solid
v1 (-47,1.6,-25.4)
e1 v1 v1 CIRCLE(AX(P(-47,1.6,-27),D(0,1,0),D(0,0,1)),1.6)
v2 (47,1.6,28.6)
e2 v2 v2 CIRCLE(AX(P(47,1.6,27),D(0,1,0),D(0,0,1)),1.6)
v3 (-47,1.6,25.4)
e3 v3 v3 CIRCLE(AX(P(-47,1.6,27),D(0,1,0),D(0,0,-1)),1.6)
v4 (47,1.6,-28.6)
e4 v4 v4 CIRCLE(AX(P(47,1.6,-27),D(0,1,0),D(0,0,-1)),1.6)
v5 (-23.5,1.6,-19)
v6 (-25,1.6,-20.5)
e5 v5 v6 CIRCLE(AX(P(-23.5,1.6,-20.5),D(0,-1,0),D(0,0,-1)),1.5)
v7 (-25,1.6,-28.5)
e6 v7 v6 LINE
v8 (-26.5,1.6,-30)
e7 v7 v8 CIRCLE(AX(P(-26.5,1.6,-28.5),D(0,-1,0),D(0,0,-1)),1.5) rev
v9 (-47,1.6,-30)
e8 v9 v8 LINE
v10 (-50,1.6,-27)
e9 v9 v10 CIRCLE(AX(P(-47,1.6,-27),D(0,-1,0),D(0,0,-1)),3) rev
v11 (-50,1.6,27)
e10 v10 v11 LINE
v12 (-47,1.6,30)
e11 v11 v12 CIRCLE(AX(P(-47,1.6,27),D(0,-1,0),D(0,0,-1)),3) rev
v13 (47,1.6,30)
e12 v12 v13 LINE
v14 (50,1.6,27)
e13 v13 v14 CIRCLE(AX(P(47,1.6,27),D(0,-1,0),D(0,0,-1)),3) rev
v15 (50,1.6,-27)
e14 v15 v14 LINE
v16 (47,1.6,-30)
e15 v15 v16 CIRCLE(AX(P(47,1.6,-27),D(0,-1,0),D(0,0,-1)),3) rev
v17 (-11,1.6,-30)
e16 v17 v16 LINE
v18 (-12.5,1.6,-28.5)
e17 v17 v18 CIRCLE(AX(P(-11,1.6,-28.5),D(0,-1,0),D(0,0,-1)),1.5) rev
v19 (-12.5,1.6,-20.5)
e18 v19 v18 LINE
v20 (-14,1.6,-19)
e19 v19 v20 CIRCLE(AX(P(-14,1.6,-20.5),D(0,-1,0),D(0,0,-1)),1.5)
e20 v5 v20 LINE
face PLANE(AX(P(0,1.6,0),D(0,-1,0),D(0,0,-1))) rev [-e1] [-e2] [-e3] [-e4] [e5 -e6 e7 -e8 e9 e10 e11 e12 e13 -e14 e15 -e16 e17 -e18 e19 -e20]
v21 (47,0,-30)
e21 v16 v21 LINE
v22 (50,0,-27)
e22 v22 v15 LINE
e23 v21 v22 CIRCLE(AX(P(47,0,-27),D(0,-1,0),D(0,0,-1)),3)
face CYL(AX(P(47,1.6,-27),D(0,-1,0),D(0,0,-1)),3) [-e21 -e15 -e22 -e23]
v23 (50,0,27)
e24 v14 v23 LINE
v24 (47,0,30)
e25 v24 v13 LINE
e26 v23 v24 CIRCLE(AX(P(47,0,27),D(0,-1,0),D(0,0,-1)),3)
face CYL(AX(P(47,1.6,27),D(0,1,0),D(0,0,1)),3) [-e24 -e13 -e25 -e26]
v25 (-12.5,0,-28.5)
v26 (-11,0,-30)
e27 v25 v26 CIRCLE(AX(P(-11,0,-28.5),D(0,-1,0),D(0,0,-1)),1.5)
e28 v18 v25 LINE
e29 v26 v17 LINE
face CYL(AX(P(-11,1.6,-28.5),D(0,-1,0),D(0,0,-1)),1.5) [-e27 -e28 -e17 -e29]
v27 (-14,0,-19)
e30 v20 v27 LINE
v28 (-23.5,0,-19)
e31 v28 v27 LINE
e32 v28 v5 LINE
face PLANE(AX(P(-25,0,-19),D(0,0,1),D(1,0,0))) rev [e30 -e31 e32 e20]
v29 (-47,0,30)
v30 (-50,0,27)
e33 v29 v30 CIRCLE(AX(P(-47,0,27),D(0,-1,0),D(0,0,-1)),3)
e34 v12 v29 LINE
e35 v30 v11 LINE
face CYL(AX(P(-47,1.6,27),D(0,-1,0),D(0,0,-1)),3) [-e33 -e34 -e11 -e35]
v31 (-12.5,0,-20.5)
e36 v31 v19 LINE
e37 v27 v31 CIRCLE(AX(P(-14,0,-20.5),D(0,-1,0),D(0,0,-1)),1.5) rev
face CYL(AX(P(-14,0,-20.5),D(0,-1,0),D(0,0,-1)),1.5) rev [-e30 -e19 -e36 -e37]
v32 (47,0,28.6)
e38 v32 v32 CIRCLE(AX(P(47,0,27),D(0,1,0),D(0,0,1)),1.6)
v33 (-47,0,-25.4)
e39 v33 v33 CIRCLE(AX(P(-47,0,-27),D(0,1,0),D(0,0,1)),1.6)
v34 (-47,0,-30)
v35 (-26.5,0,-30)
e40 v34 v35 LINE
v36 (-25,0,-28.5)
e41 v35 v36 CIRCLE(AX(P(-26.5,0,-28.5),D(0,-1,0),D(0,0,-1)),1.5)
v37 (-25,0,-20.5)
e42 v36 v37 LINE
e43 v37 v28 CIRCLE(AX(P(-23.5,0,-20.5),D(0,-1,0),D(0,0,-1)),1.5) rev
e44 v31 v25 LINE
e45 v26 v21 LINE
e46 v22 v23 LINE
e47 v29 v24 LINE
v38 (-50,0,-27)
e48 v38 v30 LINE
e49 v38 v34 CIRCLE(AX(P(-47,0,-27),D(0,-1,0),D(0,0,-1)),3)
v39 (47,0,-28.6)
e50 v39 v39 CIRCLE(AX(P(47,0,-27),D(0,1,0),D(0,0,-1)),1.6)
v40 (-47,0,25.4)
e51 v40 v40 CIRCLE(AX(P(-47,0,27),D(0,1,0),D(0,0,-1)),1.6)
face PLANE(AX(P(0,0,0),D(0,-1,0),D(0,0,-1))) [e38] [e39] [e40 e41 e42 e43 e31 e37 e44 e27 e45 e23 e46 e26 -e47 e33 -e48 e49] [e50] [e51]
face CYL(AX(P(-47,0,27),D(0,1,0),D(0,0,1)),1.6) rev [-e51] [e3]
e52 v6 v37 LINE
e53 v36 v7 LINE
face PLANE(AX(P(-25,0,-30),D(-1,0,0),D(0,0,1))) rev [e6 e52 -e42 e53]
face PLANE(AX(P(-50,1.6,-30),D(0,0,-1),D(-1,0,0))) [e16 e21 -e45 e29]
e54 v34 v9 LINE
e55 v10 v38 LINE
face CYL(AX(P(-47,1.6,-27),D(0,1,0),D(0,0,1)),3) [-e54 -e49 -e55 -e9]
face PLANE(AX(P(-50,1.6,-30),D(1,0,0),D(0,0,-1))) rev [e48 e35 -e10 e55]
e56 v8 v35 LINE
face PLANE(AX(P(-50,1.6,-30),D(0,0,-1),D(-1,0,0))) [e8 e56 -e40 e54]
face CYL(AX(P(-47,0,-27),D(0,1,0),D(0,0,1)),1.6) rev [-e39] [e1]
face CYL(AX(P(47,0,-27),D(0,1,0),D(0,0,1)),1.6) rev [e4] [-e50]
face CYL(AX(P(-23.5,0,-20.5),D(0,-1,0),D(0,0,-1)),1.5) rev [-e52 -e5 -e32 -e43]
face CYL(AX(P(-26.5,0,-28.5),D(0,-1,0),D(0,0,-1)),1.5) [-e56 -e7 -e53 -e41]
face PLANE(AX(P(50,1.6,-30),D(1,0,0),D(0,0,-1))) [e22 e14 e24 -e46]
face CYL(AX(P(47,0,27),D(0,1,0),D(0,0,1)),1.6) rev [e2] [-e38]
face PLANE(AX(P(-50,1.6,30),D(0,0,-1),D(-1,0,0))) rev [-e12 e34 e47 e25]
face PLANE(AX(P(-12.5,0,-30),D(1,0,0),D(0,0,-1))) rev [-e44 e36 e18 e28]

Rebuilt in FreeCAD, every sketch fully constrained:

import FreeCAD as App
import Part
import Sketcher
from FreeCAD import Vector
Q = App.Units.Quantity


def edges_at(feature, points):
    """Names of the edges that pass closest to the given points."""
    edges = feature.Shape.Edges
    near = lambda p: min(range(len(edges)), key=lambda i: edges[i].distToShape(Part.Vertex(*p))[0])
    return sorted({f"Edge{near(p) + 1}" for p in points})

doc = App.newDocument("Part")
body = doc.addObject("PartDesign::Body", "Body")

# Sketch on XZ plane
sketch1 = body.newObject("Sketcher::SketchObject", "Sketch")
sketch1.AttachmentSupport = (doc.getObject("XZ_Plane"), [""])
sketch1.MapMode = "FlatFace"
sketch1.addGeometry(Part.LineSegment(Vector(-50, -30, 0), Vector(-50, 30, 0)), False)
sketch1.addGeometry(Part.LineSegment(Vector(-50, 30, 0), Vector(50, 30, 0)), False)
sketch1.addGeometry(Part.LineSegment(Vector(50, 30, 0), Vector(50, -30, 0)), False)
sketch1.addGeometry(Part.LineSegment(Vector(50, -30, 0), Vector(-50, -30, 0)), False)
sketch1.addConstraint(Sketcher.Constraint("Coincident", 0, 2, 1, 1))
sketch1.addConstraint(Sketcher.Constraint("Coincident", 1, 2, 2, 1))
sketch1.addConstraint(Sketcher.Constraint("Coincident", 2, 2, 3, 1))
sketch1.addConstraint(Sketcher.Constraint("Coincident", 3, 2, 0, 1))
sketch1.addConstraint(Sketcher.Constraint("Vertical", 0))
sketch1.addConstraint(Sketcher.Constraint("Horizontal", 1))
sketch1.addConstraint(Sketcher.Constraint("Vertical", 2))
sketch1.addConstraint(Sketcher.Constraint("Horizontal", 3))
sketch1.addConstraint(Sketcher.Constraint("Symmetric", 0, 2, 2, 2, -1, 1))
sketch1.addConstraint(Sketcher.Constraint("DistanceX", 1, 1, 1, 2, Q("100 mm")))
sketch1.addConstraint(Sketcher.Constraint("DistanceY", 0, 1, 0, 2, Q("60 mm")))
pad1 = body.newObject("PartDesign::Pad", "Pad")
pad1.Profile = sketch1
pad1.Length = 1.6
pad1.Reversed = True

# Sketch on XZ plane
sketch2 = body.newObject("Sketcher::SketchObject", "Sketch001")
sketch2.AttachmentSupport = (doc.getObject("XZ_Plane"), [""])
sketch2.MapMode = "FlatFace"
sketch2.AttachmentOffset = App.Placement(Vector(0, 0, -1.6), App.Rotation())
sketch2.addGeometry(Part.Circle(Vector(-47, -27, 0), Vector(0, 0, 1), 1.6), False)
sketch2.addGeometry(Part.Circle(Vector(47, -27, 0), Vector(0, 0, 1), 1.6), False)
sketch2.addGeometry(Part.Circle(Vector(47, 27, 0), Vector(0, 0, 1), 1.6), False)
sketch2.addGeometry(Part.Circle(Vector(-47, 27, 0), Vector(0, 0, 1), 1.6), False)
sketch2.addConstraint(Sketcher.Constraint("Equal", 0, 1))
sketch2.addConstraint(Sketcher.Constraint("Equal", 1, 2))
sketch2.addConstraint(Sketcher.Constraint("Equal", 2, 3))
sketch2.addConstraint(Sketcher.Constraint("Symmetric", 0, 3, 2, 3, -1, 1))
sketch2.addConstraint(Sketcher.Constraint("Symmetric", 1, 3, 3, 3, -1, 1))
sketch2.addConstraint(Sketcher.Constraint("Symmetric", 0, 3, 1, 3, -2))
sketch2.addConstraint(Sketcher.Constraint("Diameter", 0, Q("3.2 mm")))
sketch2.addConstraint(Sketcher.Constraint("DistanceX", 0, 3, -1, 1, Q("47 mm")))
sketch2.addConstraint(Sketcher.Constraint("DistanceY", 0, 3, -1, 1, Q("27 mm")))
pocket1 = body.newObject("PartDesign::Pocket", "Pocket")
pocket1.Profile = sketch2
pocket1.Type = "ThroughAll"
pocket1.Reversed = True

# Sketch on XZ plane
sketch3 = body.newObject("Sketcher::SketchObject", "Sketch002")
sketch3.AttachmentSupport = (doc.getObject("XZ_Plane"), [""])
sketch3.MapMode = "FlatFace"
sketch3.AttachmentOffset = App.Placement(Vector(0, 0, -1.6), App.Rotation())
sketch3.addGeometry(Part.LineSegment(Vector(-25, -30, 0), Vector(-25, -19, 0)), False)
sketch3.addGeometry(Part.LineSegment(Vector(-25, -19, 0), Vector(-12, -19, 0)), False)
sketch3.addGeometry(Part.LineSegment(Vector(-12, -19, 0), Vector(-12, -30, 0)), False)
sketch3.addGeometry(Part.LineSegment(Vector(-12, -30, 0), Vector(-25, -30, 0)), False)
sketch3.addConstraint(Sketcher.Constraint("Coincident", 0, 2, 1, 1))
sketch3.addConstraint(Sketcher.Constraint("Coincident", 1, 2, 2, 1))
sketch3.addConstraint(Sketcher.Constraint("Coincident", 2, 2, 3, 1))
sketch3.addConstraint(Sketcher.Constraint("Coincident", 3, 2, 0, 1))
sketch3.addConstraint(Sketcher.Constraint("Vertical", 0))
sketch3.addConstraint(Sketcher.Constraint("Horizontal", 1))
sketch3.addConstraint(Sketcher.Constraint("Vertical", 2))
sketch3.addConstraint(Sketcher.Constraint("Horizontal", 3))
sketch3.addConstraint(Sketcher.Constraint("DistanceY", 0, 1, 0, 2, Q("11 mm")))
sketch3.addConstraint(Sketcher.Constraint("DistanceX", 1, 1, 1, 2, Q("12.5 mm")))
sketch3.addConstraint(Sketcher.Constraint("DistanceX", 0, 2, -1, 1, Q("25 mm")))
sketch3.addConstraint(Sketcher.Constraint("DistanceY", 0, 2, -1, 1, Q("19 mm")))
pocket2 = body.newObject("PartDesign::Pocket", "Pocket001")
pocket2.Profile = sketch3
pocket2.Type = "ThroughAll"
pocket2.Reversed = True
doc.recompute()

fillet = body.newObject("PartDesign::Fillet", "Fillet")
fillet.Base = (pocket2, edges_at(pocket2, [
    (-50, 0.8, 30),
    (-50, 0.8, -30),
    (50, 0.8, -30),
    (50, 0.8, 30),
]))
fillet.Radius = 3
doc.recompute()

fillet2 = body.newObject("PartDesign::Fillet", "Fillet001")
fillet2.Base = (fillet, edges_at(fillet, [
    (-25, 0.8, -19),
    (-25, 0.8, -30),
    (-12.5, 0.8, -30),
    (-12.5, 0.8, -19),
]))
fillet2.Radius = 1.5

doc.recompute()
